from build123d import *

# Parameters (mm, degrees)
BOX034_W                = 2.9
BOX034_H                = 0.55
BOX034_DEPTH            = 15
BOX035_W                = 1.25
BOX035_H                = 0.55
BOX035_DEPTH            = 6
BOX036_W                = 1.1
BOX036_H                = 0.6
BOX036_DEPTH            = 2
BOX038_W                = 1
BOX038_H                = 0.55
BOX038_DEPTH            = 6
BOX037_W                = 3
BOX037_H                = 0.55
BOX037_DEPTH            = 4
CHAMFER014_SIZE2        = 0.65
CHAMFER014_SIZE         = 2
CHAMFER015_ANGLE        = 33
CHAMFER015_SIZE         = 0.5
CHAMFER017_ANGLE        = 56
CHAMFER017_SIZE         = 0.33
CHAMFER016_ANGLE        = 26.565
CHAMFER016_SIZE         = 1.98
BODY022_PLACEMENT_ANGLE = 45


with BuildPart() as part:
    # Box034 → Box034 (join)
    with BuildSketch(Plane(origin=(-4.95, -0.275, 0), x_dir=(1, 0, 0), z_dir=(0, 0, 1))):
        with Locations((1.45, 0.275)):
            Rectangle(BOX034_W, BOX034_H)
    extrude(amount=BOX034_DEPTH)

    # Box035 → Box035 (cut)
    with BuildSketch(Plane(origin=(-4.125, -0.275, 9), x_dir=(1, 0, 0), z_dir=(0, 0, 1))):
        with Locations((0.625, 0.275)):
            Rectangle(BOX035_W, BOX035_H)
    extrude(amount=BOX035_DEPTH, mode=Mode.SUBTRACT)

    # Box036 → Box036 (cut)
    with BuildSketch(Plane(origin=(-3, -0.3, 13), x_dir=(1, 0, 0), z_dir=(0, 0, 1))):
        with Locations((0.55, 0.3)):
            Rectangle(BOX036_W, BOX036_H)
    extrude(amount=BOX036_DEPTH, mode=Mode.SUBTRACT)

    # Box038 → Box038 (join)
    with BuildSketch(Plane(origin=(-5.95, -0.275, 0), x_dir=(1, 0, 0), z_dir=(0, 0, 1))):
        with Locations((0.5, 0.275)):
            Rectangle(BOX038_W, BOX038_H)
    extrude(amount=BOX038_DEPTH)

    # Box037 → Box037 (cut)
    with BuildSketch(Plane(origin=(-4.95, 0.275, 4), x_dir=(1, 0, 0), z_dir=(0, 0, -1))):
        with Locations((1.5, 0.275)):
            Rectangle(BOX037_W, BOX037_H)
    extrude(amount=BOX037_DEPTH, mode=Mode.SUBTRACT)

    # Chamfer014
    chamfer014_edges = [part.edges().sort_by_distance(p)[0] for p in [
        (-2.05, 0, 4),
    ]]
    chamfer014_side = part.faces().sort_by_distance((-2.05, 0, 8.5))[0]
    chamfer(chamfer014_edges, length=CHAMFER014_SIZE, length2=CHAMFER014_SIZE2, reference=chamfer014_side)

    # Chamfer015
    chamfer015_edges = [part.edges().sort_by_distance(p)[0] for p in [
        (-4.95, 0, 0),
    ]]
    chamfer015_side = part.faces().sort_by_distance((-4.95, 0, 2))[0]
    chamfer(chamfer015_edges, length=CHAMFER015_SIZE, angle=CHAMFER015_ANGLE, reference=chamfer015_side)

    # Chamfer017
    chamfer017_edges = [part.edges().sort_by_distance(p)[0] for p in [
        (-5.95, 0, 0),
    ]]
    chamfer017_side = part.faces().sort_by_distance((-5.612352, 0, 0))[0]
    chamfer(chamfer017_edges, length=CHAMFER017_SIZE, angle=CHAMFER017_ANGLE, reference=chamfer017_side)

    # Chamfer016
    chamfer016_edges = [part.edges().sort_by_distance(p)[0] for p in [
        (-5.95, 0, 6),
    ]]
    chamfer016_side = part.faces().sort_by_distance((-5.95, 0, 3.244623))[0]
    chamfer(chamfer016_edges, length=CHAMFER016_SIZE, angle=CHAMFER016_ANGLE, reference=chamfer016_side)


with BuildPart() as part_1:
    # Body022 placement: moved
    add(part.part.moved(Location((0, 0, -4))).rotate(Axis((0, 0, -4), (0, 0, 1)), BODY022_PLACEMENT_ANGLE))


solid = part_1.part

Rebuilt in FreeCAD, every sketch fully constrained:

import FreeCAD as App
import Part
import Sketcher
from FreeCAD import Vector


def edges_at(feature, points):
    """Names of the edges that pass closest to the given points."""
    edges = feature.Shape.Edges
    near = lambda p: min(range(len(edges)), key=lambda i: edges[i].distToShape(Part.Vertex(*p))[0])
    return sorted({f"Edge{near(p) + 1}" for p in points})

doc = App.newDocument("Part")
params = doc.addObject("Spreadsheet::Sheet", "Params")
for row, (alias, value) in enumerate([
    ("sketch1_width", "2.9 mm"),
    ("sketch1_height", "0.55 mm"),
    ("pad1_length", "15 mm"),
    ("sketch2_width", "1.25 mm"),
    ("sketch2_height", "0.55 mm"),
    ("pocket1_length", "6 mm"),
    ("sketch3_width", "1.1 mm"),
    ("sketch3_height", "0.6 mm"),
    ("pocket2_length", "2 mm"),
    ("sketch4_width", "1 mm"),
    ("sketch4_height", "0.55 mm"),
    ("pad2_length", "6 mm"),
    ("sketch5_width", "3 mm"),
    ("sketch5_height", "0.55 mm"),
    ("pocket3_length", "4 mm"),
    ("chamfer_size", "2 mm"),
    ("chamfer_size2", "0.65 mm"),
    ("chamfer2_size", "0.5 mm"),
    ("chamfer3_size", "0.33 mm"),
    ("chamfer4_size", "1.98 mm"),
], start=1):
    params.set(f"A{row}", alias)
    params.set(f"B{row}", "=" + value)
    params.setAlias(f"B{row}", alias)

body = doc.addObject("PartDesign::Body", "Body")

sketch1 = body.newObject("Sketcher::SketchObject", "Sketch")
sketch1.AttachmentSupport = (doc.getObject("XY_Plane"), [""])
sketch1.MapMode = "FlatFace"
sketch1.addGeometry([
    Part.LineSegment(Vector(-5, 0.3, 0), Vector(-5, -0.3, 0)),
    Part.LineSegment(Vector(-5, -0.3, 0), Vector(-2, -0.3, 0)),
    Part.LineSegment(Vector(-2, -0.3, 0), Vector(-2, 0.3, 0)),
    Part.LineSegment(Vector(-2, 0.3, 0), Vector(-5, 0.3, 0)),
], False)
sketch1.addConstraint([
    Sketcher.Constraint("Coincident", 0, 2, 1, 1),
    Sketcher.Constraint("Coincident", 1, 2, 2, 1),
    Sketcher.Constraint("Coincident", 2, 2, 3, 1),
    Sketcher.Constraint("Coincident", 3, 2, 0, 1),
    Sketcher.Constraint("Vertical", 0),
    Sketcher.Constraint("Horizontal", 1),
    Sketcher.Constraint("Vertical", 2),
    Sketcher.Constraint("Horizontal", 3),
    Sketcher.Constraint("DistanceX", 1, 1, 1, 2, 2.9),
    Sketcher.Constraint("DistanceY", 0, 2, 0, 1, 0.55),
    Sketcher.Constraint("DistanceX", 0, 2, -1, 1, 4.95),
    Sketcher.Constraint("DistanceY", 0, 2, -1, 1, 0.275),
])
sketch1.setExpression("Constraints[8]", "Params.sketch1_width")
sketch1.setExpression("Constraints[9]", "Params.sketch1_height")
pad1 = body.newObject("PartDesign::Pad", "Pad")
pad1.Profile = sketch1
pad1.setExpression("Length", "Params.pad1_length")

sketch2 = body.newObject("Sketcher::SketchObject", "Sketch001")
sketch2.AttachmentSupport = (doc.getObject("XY_Plane"), [""])
sketch2.MapMode = "FlatFace"
sketch2.AttachmentOffset = App.Placement(Vector(0, 0, 9), App.Rotation())
sketch2.addGeometry([
    Part.LineSegment(Vector(-4.1, 0.3, 0), Vector(-4.1, -0.3, 0)),
    Part.LineSegment(Vector(-4.1, -0.3, 0), Vector(-2.9, -0.3, 0)),
    Part.LineSegment(Vector(-2.9, -0.3, 0), Vector(-2.9, 0.3, 0)),
    Part.LineSegment(Vector(-2.9, 0.3, 0), Vector(-4.1, 0.3, 0)),
], False)
sketch2.addConstraint([
    Sketcher.Constraint("Coincident", 0, 2, 1, 1),
    Sketcher.Constraint("Coincident", 1, 2, 2, 1),
    Sketcher.Constraint("Coincident", 2, 2, 3, 1),
    Sketcher.Constraint("Coincident", 3, 2, 0, 1),
    Sketcher.Constraint("Vertical", 0),
    Sketcher.Constraint("Horizontal", 1),
    Sketcher.Constraint("Vertical", 2),
    Sketcher.Constraint("Horizontal", 3),
    Sketcher.Constraint("DistanceX", 1, 1, 1, 2, 1.25),
    Sketcher.Constraint("DistanceY", 0, 2, 0, 1, 0.55),
    Sketcher.Constraint("DistanceX", 0, 2, -1, 1, 4.125),
    Sketcher.Constraint("DistanceY", 0, 2, -1, 1, 0.275),
])
sketch2.setExpression("Constraints[8]", "Params.sketch2_width")
sketch2.setExpression("Constraints[9]", "Params.sketch2_height")
pocket1 = body.newObject("PartDesign::Pocket", "Pocket")
pocket1.Profile = sketch2
pocket1.setExpression("Length", "Params.pocket1_length")
pocket1.Reversed = True

sketch3 = body.newObject("Sketcher::SketchObject", "Sketch002")
sketch3.AttachmentSupport = (doc.getObject("XY_Plane"), [""])
sketch3.MapMode = "FlatFace"
sketch3.AttachmentOffset = App.Placement(Vector(0, 0, 13), App.Rotation())
sketch3.addGeometry([
    Part.LineSegment(Vector(-3, 0.3, 0), Vector(-3, -0.3, 0)),
    Part.LineSegment(Vector(-3, -0.3, 0), Vector(-1.9, -0.3, 0)),
    Part.LineSegment(Vector(-1.9, -0.3, 0), Vector(-1.9, 0.3, 0)),
    Part.LineSegment(Vector(-1.9, 0.3, 0), Vector(-3, 0.3, 0)),
], False)
sketch3.addConstraint([
    Sketcher.Constraint("Coincident", 0, 2, 1, 1),
    Sketcher.Constraint("Coincident", 1, 2, 2, 1),
    Sketcher.Constraint("Coincident", 2, 2, 3, 1),
    Sketcher.Constraint("Coincident", 3, 2, 0, 1),
    Sketcher.Constraint("Vertical", 0),
    Sketcher.Constraint("Horizontal", 1),
    Sketcher.Constraint("Vertical", 2),
    Sketcher.Constraint("Horizontal", 3),
    Sketcher.Constraint("DistanceX", 1, 1, 1, 2, 1.1),
    Sketcher.Constraint("DistanceY", 0, 2, 0, 1, 0.6),
    Sketcher.Constraint("DistanceX", 0, 2, -1, 1, 3.0),
    Sketcher.Constraint("DistanceY", 0, 2, -1, 1, 0.3),
])
sketch3.setExpression("Constraints[8]", "Params.sketch3_width")
sketch3.setExpression("Constraints[9]", "Params.sketch3_height")
pocket2 = body.newObject("PartDesign::Pocket", "Pocket001")
pocket2.Profile = sketch3
pocket2.setExpression("Length", "Params.pocket2_length")
pocket2.Reversed = True

sketch4 = body.newObject("Sketcher::SketchObject", "Sketch003")
sketch4.AttachmentSupport = (doc.getObject("XY_Plane"), [""])
sketch4.MapMode = "FlatFace"
sketch4.addGeometry([
    Part.LineSegment(Vector(-6, 0.3, 0), Vector(-6, -0.3, 0)),
    Part.LineSegment(Vector(-6, -0.3, 0), Vector(-5, -0.3, 0)),
    Part.LineSegment(Vector(-5, -0.3, 0), Vector(-5, 0.3, 0)),
    Part.LineSegment(Vector(-5, 0.3, 0), Vector(-6, 0.3, 0)),
], False)
sketch4.addConstraint([
    Sketcher.Constraint("Coincident", 0, 2, 1, 1),
    Sketcher.Constraint("Coincident", 1, 2, 2, 1),
    Sketcher.Constraint("Coincident", 2, 2, 3, 1),
    Sketcher.Constraint("Coincident", 3, 2, 0, 1),
    Sketcher.Constraint("Vertical", 0),
    Sketcher.Constraint("Horizontal", 1),
    Sketcher.Constraint("Vertical", 2),
    Sketcher.Constraint("Horizontal", 3),
    Sketcher.Constraint("DistanceX", 1, 1, 1, 2, 1.0),
    Sketcher.Constraint("DistanceY", 0, 2, 0, 1, 0.55),
    Sketcher.Constraint("DistanceX", 0, 2, -1, 1, 5.95),
    Sketcher.Constraint("DistanceY", 0, 2, -1, 1, 0.275),
])
sketch4.setExpression("Constraints[8]", "Params.sketch4_width")
sketch4.setExpression("Constraints[9]", "Params.sketch4_height")
pad2 = body.newObject("PartDesign::Pad", "Pad001")
pad2.Profile = sketch4
pad2.setExpression("Length", "Params.pad2_length")

sketch5 = body.newObject("Sketcher::SketchObject", "Sketch004")
sketch5.AttachmentSupport = (doc.getObject("XY_Plane"), [""])
sketch5.MapMode = "FlatFace"
sketch5.AttachmentOffset = App.Placement(Vector(0, 0, 4), App.Rotation())
sketch5.addGeometry([
    Part.LineSegment(Vector(-5, -0.3, 0), Vector(-5, 0.3, 0)),
    Part.LineSegment(Vector(-5, 0.3, 0), Vector(-1.9, 0.3, 0)),
    Part.LineSegment(Vector(-1.9, 0.3, 0), Vector(-1.9, -0.3, 0)),
    Part.LineSegment(Vector(-1.9, -0.3, 0), Vector(-5, -0.3, 0)),
], False)
sketch5.addConstraint([
    Sketcher.Constraint("Coincident", 0, 2, 1, 1),
    Sketcher.Constraint("Coincident", 1, 2, 2, 1),
    Sketcher.Constraint("Coincident", 2, 2, 3, 1),
    Sketcher.Constraint("Coincident", 3, 2, 0, 1),
    Sketcher.Constraint("Vertical", 0),
    Sketcher.Constraint("Horizontal", 1),
    Sketcher.Constraint("Vertical", 2),
    Sketcher.Constraint("Horizontal", 3),
    Sketcher.Constraint("DistanceX", 1, 1, 1, 2, 3.0),
    Sketcher.Constraint("DistanceY", 0, 1, 0, 2, 0.55),
    Sketcher.Constraint("DistanceX", 0, 2, -1, 1, 4.95),
    Sketcher.Constraint("DistanceY", -1, 1, 0, 2, 0.275),
])
sketch5.setExpression("Constraints[8]", "Params.sketch5_width")
sketch5.setExpression("Constraints[9]", "Params.sketch5_height")
pocket3 = body.newObject("PartDesign::Pocket", "Pocket002")
pocket3.Profile = sketch5
pocket3.setExpression("Length", "Params.pocket3_length")
doc.recompute()

chamfer = body.newObject("PartDesign::Chamfer", "Chamfer")
chamfer.Base = (pocket3, edges_at(pocket3, [(-2.05, 0, 4)]))
chamfer.ChamferType = "Two distances"
chamfer.setExpression("Size", "Params.chamfer_size")
chamfer.setExpression("Size2", "Params.chamfer_size2")
doc.recompute()

chamfer2 = body.newObject("PartDesign::Chamfer", "Chamfer001")
chamfer2.Base = (chamfer, edges_at(chamfer, [(-4.95, 0, 0)]))
chamfer2.ChamferType = "Distance and Angle"
chamfer2.setExpression("Size", "Params.chamfer2_size")
chamfer2.Angle = 33
doc.recompute()

chamfer3 = body.newObject("PartDesign::Chamfer", "Chamfer002")
chamfer3.Base = (chamfer2, edges_at(chamfer2, [(-5.95, 0, 0)]))
chamfer3.ChamferType = "Distance and Angle"
chamfer3.setExpression("Size", "Params.chamfer3_size")
chamfer3.Angle = 56
doc.recompute()

chamfer4 = body.newObject("PartDesign::Chamfer", "Chamfer003")
chamfer4.Base = (chamfer3, edges_at(chamfer3, [(-5.95, 0, 6)]))
chamfer4.ChamferType = "Distance and Angle"
chamfer4.setExpression("Size", "Params.chamfer4_size")
chamfer4.Angle = 26.565
body2 = doc.addObject("PartDesign::Body", "Body001")
doc.recompute()

body.Placement = App.Placement(Vector(0, 0, -4), App.Rotation(Vector(0, 0, 1), 45))
boolean = body2.newObject("PartDesign::Boolean", "Boolean")
boolean.Type = "Fuse"
boolean.addObjects([body])

doc.recompute()
